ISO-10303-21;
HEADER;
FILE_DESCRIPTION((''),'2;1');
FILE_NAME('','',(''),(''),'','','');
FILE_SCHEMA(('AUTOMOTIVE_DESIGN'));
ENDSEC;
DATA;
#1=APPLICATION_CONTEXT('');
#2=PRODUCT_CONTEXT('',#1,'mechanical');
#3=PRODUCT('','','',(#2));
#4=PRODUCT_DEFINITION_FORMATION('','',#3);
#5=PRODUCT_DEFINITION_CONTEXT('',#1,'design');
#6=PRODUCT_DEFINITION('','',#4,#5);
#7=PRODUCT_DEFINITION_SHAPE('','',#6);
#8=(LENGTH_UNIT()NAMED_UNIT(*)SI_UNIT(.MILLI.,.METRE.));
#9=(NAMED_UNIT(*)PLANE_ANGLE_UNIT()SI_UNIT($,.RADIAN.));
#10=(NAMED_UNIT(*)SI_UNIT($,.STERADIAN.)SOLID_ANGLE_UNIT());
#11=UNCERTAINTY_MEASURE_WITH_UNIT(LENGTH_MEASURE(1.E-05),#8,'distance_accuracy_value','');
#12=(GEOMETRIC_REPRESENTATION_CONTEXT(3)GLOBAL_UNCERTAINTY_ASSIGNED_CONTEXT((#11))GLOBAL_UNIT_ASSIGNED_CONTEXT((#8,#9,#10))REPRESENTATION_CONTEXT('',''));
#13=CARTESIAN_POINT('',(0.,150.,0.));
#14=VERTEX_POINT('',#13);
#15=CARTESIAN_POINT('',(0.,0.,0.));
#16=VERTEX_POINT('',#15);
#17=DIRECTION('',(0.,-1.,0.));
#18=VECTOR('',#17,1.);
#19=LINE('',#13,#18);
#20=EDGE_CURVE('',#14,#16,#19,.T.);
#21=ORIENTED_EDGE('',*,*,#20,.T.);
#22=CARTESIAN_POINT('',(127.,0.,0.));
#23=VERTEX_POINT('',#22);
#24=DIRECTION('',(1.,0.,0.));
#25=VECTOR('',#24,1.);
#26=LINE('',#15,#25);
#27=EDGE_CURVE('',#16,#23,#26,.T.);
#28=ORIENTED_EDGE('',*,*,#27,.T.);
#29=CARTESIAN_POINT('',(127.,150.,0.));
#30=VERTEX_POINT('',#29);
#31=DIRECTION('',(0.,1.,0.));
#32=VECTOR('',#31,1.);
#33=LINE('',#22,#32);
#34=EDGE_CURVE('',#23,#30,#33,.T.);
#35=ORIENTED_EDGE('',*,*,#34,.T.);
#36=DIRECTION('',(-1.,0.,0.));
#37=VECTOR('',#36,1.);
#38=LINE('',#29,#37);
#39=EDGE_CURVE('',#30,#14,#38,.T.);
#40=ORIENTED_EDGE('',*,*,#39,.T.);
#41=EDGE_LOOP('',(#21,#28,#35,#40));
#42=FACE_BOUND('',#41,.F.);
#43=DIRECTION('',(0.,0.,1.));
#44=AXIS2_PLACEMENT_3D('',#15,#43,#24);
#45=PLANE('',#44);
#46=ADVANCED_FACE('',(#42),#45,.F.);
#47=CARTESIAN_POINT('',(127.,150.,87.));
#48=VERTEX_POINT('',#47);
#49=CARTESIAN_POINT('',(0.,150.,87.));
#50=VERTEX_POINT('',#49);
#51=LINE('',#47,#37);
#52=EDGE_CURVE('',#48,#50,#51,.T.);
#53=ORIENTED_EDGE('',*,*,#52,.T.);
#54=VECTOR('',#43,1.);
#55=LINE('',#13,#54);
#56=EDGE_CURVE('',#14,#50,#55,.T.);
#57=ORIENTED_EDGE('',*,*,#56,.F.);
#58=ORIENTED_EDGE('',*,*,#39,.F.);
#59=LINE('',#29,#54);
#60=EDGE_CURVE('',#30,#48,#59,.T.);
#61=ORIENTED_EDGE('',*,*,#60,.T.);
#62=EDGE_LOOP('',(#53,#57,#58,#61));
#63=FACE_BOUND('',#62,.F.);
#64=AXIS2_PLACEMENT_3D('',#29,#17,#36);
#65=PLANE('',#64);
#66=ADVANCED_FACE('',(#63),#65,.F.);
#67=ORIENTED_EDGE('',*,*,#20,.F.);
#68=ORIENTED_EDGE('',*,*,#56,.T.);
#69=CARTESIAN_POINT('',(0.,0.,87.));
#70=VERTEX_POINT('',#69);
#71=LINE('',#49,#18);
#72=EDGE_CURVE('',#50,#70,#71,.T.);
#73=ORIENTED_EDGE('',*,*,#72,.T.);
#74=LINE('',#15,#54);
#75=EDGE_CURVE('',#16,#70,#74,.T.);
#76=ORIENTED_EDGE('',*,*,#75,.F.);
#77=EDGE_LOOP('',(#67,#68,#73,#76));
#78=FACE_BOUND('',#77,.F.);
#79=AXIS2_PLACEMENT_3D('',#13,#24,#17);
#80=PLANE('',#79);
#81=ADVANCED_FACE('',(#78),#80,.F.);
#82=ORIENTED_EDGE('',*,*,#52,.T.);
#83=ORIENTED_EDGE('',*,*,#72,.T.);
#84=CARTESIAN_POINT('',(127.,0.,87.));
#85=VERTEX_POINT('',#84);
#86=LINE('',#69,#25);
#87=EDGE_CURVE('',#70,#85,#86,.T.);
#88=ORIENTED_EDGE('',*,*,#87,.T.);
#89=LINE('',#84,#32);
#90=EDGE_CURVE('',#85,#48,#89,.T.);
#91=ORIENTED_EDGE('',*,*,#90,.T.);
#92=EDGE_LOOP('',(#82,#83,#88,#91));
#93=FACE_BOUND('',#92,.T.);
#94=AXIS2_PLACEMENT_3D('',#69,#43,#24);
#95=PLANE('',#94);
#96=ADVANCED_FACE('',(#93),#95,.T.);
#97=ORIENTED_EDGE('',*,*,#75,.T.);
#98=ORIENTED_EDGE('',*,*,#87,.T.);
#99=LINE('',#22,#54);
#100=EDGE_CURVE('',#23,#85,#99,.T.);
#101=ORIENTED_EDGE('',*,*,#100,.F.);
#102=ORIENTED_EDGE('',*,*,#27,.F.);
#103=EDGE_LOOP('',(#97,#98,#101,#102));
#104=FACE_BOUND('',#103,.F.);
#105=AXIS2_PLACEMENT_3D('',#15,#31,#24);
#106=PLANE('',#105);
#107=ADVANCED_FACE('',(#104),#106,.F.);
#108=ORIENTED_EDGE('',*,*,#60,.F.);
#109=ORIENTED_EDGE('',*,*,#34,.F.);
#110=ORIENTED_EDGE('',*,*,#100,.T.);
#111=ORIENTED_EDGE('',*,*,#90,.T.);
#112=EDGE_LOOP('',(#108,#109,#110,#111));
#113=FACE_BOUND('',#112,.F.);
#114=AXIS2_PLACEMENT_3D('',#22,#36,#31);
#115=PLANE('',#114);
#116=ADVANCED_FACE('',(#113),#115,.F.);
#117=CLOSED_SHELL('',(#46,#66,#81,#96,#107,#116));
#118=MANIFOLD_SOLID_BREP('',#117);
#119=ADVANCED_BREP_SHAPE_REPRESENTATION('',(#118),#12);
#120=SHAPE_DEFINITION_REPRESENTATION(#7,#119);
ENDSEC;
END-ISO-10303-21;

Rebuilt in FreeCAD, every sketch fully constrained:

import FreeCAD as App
import Part
import Sketcher
from FreeCAD import Vector
Q = App.Units.Quantity

doc = App.newDocument("Part")
body = doc.addObject("PartDesign::Body", "Body")

sketch1 = body.newObject("Sketcher::SketchObject", "Sketch")
sketch1.AttachmentSupport = (doc.getObject("XY_Plane"), [""])
sketch1.MapMode = "FlatFace"
sketch1.addGeometry([
    Part.LineSegment(Vector(0, 150, 0), Vector(0, 0, 0)),
    Part.LineSegment(Vector(0, 0, 0), Vector(127, 0, 0)),
    Part.LineSegment(Vector(127, 0, 0), Vector(127, 150, 0)),
    Part.LineSegment(Vector(127, 150, 0), Vector(0, 150, 0)),
], False)
sketch1.addConstraint([
    Sketcher.Constraint("Coincident", 0, 2, 1, 1),
    Sketcher.Constraint("Coincident", 1, 2, 2, 1),
    Sketcher.Constraint("Coincident", 2, 2, 3, 1),
    Sketcher.Constraint("Coincident", 3, 2, 0, 1),
    Sketcher.Constraint("Vertical", 0),
    Sketcher.Constraint("Horizontal", 1),
    Sketcher.Constraint("Vertical", 2),
    Sketcher.Constraint("Horizontal", 3),
    Sketcher.Constraint("Coincident", 0, 2, -1, 1),
    Sketcher.Constraint("DistanceX", 1, 1, 1, 2, Q("5 in")),
    Sketcher.Constraint("DistanceY", 0, 2, 0, 1, Q("5.9055 in")),
])
pad1 = body.newObject("PartDesign::Pad", "Pad")
pad1.Profile = sketch1
pad1.Length = Q("3.4251969 in")

doc.recompute()
